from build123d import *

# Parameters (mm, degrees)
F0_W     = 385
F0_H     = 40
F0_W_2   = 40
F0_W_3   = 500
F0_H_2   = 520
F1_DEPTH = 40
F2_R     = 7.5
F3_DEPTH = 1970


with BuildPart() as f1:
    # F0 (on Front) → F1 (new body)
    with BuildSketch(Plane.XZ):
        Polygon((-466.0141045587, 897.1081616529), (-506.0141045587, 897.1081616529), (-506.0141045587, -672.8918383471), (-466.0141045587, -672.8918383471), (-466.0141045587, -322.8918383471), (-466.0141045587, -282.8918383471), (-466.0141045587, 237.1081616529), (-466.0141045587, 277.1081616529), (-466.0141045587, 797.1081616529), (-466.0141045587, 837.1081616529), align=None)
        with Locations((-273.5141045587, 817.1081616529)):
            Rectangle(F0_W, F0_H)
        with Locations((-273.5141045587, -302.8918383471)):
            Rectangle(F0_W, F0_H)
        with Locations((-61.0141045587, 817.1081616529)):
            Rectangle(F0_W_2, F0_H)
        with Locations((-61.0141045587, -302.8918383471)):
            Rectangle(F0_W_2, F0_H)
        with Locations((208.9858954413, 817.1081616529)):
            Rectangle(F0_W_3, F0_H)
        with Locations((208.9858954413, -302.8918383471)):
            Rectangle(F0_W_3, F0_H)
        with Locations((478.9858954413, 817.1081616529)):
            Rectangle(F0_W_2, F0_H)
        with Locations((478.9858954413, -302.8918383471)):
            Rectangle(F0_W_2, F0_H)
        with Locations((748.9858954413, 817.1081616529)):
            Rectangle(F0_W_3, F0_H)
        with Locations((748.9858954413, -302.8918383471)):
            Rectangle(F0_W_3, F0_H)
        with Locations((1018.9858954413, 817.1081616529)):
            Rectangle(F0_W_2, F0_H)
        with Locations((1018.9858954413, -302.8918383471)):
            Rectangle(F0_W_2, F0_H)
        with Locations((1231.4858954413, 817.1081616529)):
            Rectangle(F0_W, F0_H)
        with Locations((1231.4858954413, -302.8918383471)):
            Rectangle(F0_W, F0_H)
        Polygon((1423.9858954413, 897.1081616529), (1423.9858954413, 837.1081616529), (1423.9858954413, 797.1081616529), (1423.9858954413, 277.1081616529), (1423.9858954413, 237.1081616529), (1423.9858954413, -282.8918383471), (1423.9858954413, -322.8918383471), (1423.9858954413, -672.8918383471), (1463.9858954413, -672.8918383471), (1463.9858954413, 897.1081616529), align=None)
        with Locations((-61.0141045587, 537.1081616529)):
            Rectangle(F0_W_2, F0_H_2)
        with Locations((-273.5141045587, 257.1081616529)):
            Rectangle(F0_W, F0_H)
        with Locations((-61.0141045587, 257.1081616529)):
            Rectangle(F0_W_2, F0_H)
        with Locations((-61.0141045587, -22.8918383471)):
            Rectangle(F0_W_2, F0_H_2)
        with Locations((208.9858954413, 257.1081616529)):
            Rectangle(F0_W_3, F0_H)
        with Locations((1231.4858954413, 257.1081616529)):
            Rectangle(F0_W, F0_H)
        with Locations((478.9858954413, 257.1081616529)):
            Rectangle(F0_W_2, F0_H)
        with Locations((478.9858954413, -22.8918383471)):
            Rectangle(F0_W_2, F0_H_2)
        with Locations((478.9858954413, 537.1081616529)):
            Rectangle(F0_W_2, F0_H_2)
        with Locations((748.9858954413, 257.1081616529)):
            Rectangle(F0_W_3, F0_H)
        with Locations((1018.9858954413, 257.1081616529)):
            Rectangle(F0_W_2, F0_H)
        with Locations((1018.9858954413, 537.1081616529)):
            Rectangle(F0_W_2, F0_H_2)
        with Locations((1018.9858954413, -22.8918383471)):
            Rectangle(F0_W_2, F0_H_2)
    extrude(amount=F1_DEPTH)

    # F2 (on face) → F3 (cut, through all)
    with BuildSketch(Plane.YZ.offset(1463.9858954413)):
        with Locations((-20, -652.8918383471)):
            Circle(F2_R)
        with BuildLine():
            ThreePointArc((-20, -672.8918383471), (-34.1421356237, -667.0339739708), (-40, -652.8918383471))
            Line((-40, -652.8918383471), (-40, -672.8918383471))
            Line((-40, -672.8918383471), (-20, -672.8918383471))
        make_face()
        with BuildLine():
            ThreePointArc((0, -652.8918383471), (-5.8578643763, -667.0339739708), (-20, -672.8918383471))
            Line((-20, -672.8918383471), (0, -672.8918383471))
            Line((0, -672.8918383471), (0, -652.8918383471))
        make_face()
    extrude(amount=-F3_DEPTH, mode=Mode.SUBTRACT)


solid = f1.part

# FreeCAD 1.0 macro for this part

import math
import FreeCAD as App
import Part
import Sketcher


def add_polygon(sketch, points):
    """Adds a closed chain of lines whose ends are joined by coincident constraints."""
    first, n = sketch.GeometryCount, len(points)
    for a, b in zip(points, points[1:] + points[:1]):
        sketch.addGeometry(Part.LineSegment(App.Vector(*a, 0), App.Vector(*b, 0)), False)
    for i in range(n):
        sketch.addConstraint(Sketcher.Constraint("Coincident", first + i, 2, first + (i + 1) % n, 1))

doc = App.newDocument("Part")
params = doc.addObject("Spreadsheet::Sheet", "Params")
for row, (alias, value) in enumerate([
    ("sketch1_width", "40 mm"),
    ("sketch1_width2", "1890 mm"),
    ("sketch1_width3", "385 mm"),
    ("sketch1_width4", "500 mm"),
    ("sketch1_height", "1570 mm"),
    ("pad1_length", "40 mm"),
    ("sketch2_diameter", "15 mm"),
    ("sketch2_radius", "20 mm"),
], start=1):
    params.set(f"A{row}", alias)
    params.set(f"B{row}", "=" + value)
    params.setAlias(f"B{row}", alias)

body = doc.addObject("PartDesign::Body", "Body")

sketch1 = body.newObject("Sketcher::SketchObject", "Sketch")
sketch1.AttachmentSupport = (doc.getObject("XZ_Plane"), [""])
sketch1.MapMode = "FlatFace"
add_polygon(sketch1, [(-466.014105, 897.108162), (-506.014105, 897.108162), (-506.014105, -672.891838), (-466.014105, -672.891838), (-466.014105, -322.891838), (1423.985895, -322.891838), (1423.985895, -672.891838), (1463.985895, -672.891838), (1463.985895, 897.108162), (1423.985895, 897.108162), (1423.985895, 837.108162), (-466.014105, 837.108162)])
add_polygon(sketch1, [(-466.014105, 237.108162), (-81.014105, 237.108162), (-81.014105, -282.891838), (-466.014105, -282.891838)])
add_polygon(sketch1, [(458.985895, -282.891838), (-41.014105, -282.891838), (-41.014105, 237.108162), (458.985895, 237.108162)])
add_polygon(sketch1, [(-81.014105, 277.108162), (-466.014105, 277.108162), (-466.014105, 797.108162), (-81.014105, 797.108162)])
add_polygon(sketch1, [(458.985895, 277.108162), (-41.014105, 277.108162), (-41.014105, 797.108162), (458.985895, 797.108162)])
add_polygon(sketch1, [(498.985895, 797.108162), (998.985895, 797.108162), (998.985895, 277.108162), (498.985895, 277.108162)])
add_polygon(sketch1, [(1038.985895, 797.108162), (1423.985895, 797.108162), (1423.985895, 277.108162), (1038.985895, 277.108162)])
add_polygon(sketch1, [(1423.985895, 237.108162), (1423.985895, -282.891838), (1038.985895, -282.891838), (1038.985895, 237.108162)])
add_polygon(sketch1, [(998.985895, -282.891838), (498.985895, -282.891838), (498.985895, 237.108162), (998.985895, 237.108162)])
sketch1.addConstraint([
    Sketcher.Constraint("Horizontal", 0),
    Sketcher.Constraint("Vertical", 1),
    Sketcher.Constraint("Horizontal", 2),
    Sketcher.Constraint("Vertical", 3),
    Sketcher.Constraint("Horizontal", 4),
    Sketcher.Constraint("Vertical", 5),
    Sketcher.Constraint("Horizontal", 6),
    Sketcher.Constraint("Vertical", 7),
    Sketcher.Constraint("Horizontal", 8),
    Sketcher.Constraint("Vertical", 9),
    Sketcher.Constraint("Horizontal", 10),
    Sketcher.Constraint("Vertical", 11),
    Sketcher.Constraint("Horizontal", 12),
    Sketcher.Constraint("Vertical", 13),
    Sketcher.Constraint("Horizontal", 14),
    Sketcher.Constraint("Vertical", 15),
    Sketcher.Constraint("Horizontal", 16),
    Sketcher.Constraint("Vertical", 17),
    Sketcher.Constraint("Horizontal", 18),
    Sketcher.Constraint("Vertical", 19),
    Sketcher.Constraint("Horizontal", 20),
    Sketcher.Constraint("Vertical", 21),
    Sketcher.Constraint("Horizontal", 22),
    Sketcher.Constraint("Vertical", 23),
    Sketcher.Constraint("Horizontal", 24),
    Sketcher.Constraint("Vertical", 25),
    Sketcher.Constraint("Horizontal", 26),
    Sketcher.Constraint("Vertical", 27),
    Sketcher.Constraint("Horizontal", 28),
    Sketcher.Constraint("Vertical", 29),
    Sketcher.Constraint("Horizontal", 30),
    Sketcher.Constraint("Vertical", 31),
    Sketcher.Constraint("Horizontal", 32),
    Sketcher.Constraint("Vertical", 33),
    Sketcher.Constraint("Horizontal", 34),
    Sketcher.Constraint("Vertical", 35),
    Sketcher.Constraint("Vertical", 36),
    Sketcher.Constraint("Horizontal", 37),
    Sketcher.Constraint("Vertical", 38),
    Sketcher.Constraint("Horizontal", 39),
    Sketcher.Constraint("Horizontal", 40),
    Sketcher.Constraint("Vertical", 41),
    Sketcher.Constraint("Horizontal", 42),
    Sketcher.Constraint("Vertical", 43),
    Sketcher.Constraint("Horizontal", 2, 2, 5, 2),
    Sketcher.Constraint("Horizontal", 0, 2, 7, 2),
    Sketcher.Constraint("Horizontal", 14, 2, 16, 2),
    Sketcher.Constraint("Horizontal", 15, 2, 17, 2),
    Sketcher.Constraint("Horizontal", 23, 2, 24, 2),
    Sketcher.Constraint("Horizontal", 22, 2, 25, 2),
    Sketcher.Constraint("Horizontal", 26, 2, 28, 2),
    Sketcher.Constraint("Horizontal", 27, 2, 29, 2),
    Sketcher.Constraint("Horizontal", 31, 2, 32, 2),
    Sketcher.Constraint("Horizontal", 30, 2, 33, 2),
    Sketcher.Constraint("Horizontal", 19, 2, 36, 2),
    Sketcher.Constraint("Horizontal", 18, 2, 38, 2),
    Sketcher.Constraint("Horizontal", 37, 2, 40, 2),
    Sketcher.Constraint("Horizontal", 39, 2, 41, 2),
    Sketcher.Constraint("Vertical", 5, 2, 8, 2),
    Sketcher.Constraint("Vertical", 3, 2, 10, 2),
    Sketcher.Constraint("Vertical", 11, 2, 14, 2),
    Sketcher.Constraint("Vertical", 15, 2, 20, 2),
    Sketcher.Constraint("Vertical", 13, 2, 22, 2),
    Sketcher.Constraint("Vertical", 17, 2, 24, 2),
    Sketcher.Constraint("Vertical", 19, 2, 26, 2),
    Sketcher.Constraint("Vertical", 9, 2, 32, 2),
    Sketcher.Constraint("Vertical", 33, 2, 36, 2),
    Sketcher.Constraint("Vertical", 35, 2, 37, 2),
    Sketcher.Constraint("Vertical", 31, 2, 40, 2),
    Sketcher.Constraint("Vertical", 29, 2, 42, 2),
    Sketcher.Constraint("Equal", 2, 6),
    Sketcher.Constraint("Equal", 26, 28),
    Sketcher.Constraint("Equal", 22, 32),
    Sketcher.Constraint("Equal", 19, 21),
    Sketcher.Constraint("DistanceX", 0, 2, 0, 1, 40.0),
    Sketcher.Constraint("DistanceX", 4, 1, 4, 2, 1890.0),
    Sketcher.Constraint("DistanceX", 12, 1, 12, 2, 385.0),
    Sketcher.Constraint("DistanceX", 16, 2, 16, 1, 500.0),
    Sketcher.Constraint("DistanceY", 1, 2, 1, 1, 1570.0),
    Sketcher.Constraint("DistanceY", 3, 1, 3, 2, 350.0),
    Sketcher.Constraint("DistanceY", 9, 2, 9, 1, 60.0),
    Sketcher.Constraint("DistanceY", 13, 2, 13, 1, 520.0),
    Sketcher.Constraint("DistanceY", 3, 2, 12, 2, 560.0),
    Sketcher.Constraint("DistanceX", 13, 2, 16, 2, 40.0),
    Sketcher.Constraint("DistanceY", 15, 2, 20, 2, 40.0),
    Sketcher.Constraint("DistanceX", 28, 2, 9, 2, 425.0),
    Sketcher.Constraint("DistanceY", -1, 1, 0, 2, 897.108162),
    Sketcher.Constraint("DistanceX", 0, 2, -1, 1, 506.014105),
])
sketch1.setExpression("Constraints[118]", "Params.sketch1_width")
sketch1.setExpression("Constraints[119]", "Params.sketch1_width2")
sketch1.setExpression("Constraints[120]", "Params.sketch1_width3")
sketch1.setExpression("Constraints[121]", "Params.sketch1_width4")
sketch1.setExpression("Constraints[122]", "Params.sketch1_height")
pad1 = body.newObject("PartDesign::Pad", "Pad")
pad1.Profile = sketch1
pad1.setExpression("Length", "Params.pad1_length")

sketch2 = body.newObject("Sketcher::SketchObject", "Sketch001")
sketch2.AttachmentSupport = (doc.getObject("YZ_Plane"), [""])
sketch2.MapMode = "FlatFace"
sketch2.AttachmentOffset = App.Placement(App.Vector(0, 0, 1463.985895), App.Rotation())
sketch2.addGeometry([
    Part.Circle(App.Vector(-20, -652.891838, 0), App.Vector(0, 0, 1), 7.5),
    Part.ArcOfCircle(Part.Circle(App.Vector(-20, -652.891838, 0), App.Vector(0, 0, 1), 20), math.radians(180), math.radians(270)),
    Part.LineSegment(App.Vector(-40, -652.891838, 0), App.Vector(-40, -672.891838, 0)),
    Part.LineSegment(App.Vector(-40, -672.891838, 0), App.Vector(-20, -672.891838, 0)),
    Part.ArcOfCircle(Part.Circle(App.Vector(-20, -652.891838, 0), App.Vector(0, 0, 1), 20), math.radians(-90), math.radians(0)),
    Part.LineSegment(App.Vector(-20, -672.891838, 0), App.Vector(0, -672.891838, 0)),
    Part.LineSegment(App.Vector(0, -672.891838, 0), App.Vector(0, -652.891838, 0)),
], False)
sketch2.addConstraint([
    Sketcher.Constraint("Tangent", 1, 1, 2, 1),
    Sketcher.Constraint("Coincident", 2, 2, 3, 1),
    Sketcher.Constraint("Tangent", 3, 2, 1, 2),
    Sketcher.Constraint("Tangent", 4, 1, 5, 1),
    Sketcher.Constraint("Coincident", 5, 2, 6, 1),
    Sketcher.Constraint("Tangent", 6, 2, 4, 2),
    Sketcher.Constraint("Vertical", 2),
    Sketcher.Constraint("Horizontal", 3),
    Sketcher.Constraint("Horizontal", 5),
    Sketcher.Constraint("Vertical", 6),
    Sketcher.Constraint("Coincident", 1, 3, 0, 3),
    Sketcher.Constraint("Coincident", 4, 3, 0, 3),
    Sketcher.Constraint("Equal", 1, 4),
    Sketcher.Constraint("PointOnObject", 5, 2, -2),
    Sketcher.Constraint("Diameter", 0, 15.0),
    Sketcher.Constraint("Radius", 1, 20.0),
    Sketcher.Constraint("DistanceY", 0, 3, -1, 1, 652.891838),
])
sketch2.setExpression("Constraints[14]", "Params.sketch2_diameter")
sketch2.setExpression("Constraints[15]", "Params.sketch2_radius")
pocket1 = body.newObject("PartDesign::Pocket", "Pocket")
pocket1.Profile = sketch2
pocket1.Type = "ThroughAll"

doc.recompute()
